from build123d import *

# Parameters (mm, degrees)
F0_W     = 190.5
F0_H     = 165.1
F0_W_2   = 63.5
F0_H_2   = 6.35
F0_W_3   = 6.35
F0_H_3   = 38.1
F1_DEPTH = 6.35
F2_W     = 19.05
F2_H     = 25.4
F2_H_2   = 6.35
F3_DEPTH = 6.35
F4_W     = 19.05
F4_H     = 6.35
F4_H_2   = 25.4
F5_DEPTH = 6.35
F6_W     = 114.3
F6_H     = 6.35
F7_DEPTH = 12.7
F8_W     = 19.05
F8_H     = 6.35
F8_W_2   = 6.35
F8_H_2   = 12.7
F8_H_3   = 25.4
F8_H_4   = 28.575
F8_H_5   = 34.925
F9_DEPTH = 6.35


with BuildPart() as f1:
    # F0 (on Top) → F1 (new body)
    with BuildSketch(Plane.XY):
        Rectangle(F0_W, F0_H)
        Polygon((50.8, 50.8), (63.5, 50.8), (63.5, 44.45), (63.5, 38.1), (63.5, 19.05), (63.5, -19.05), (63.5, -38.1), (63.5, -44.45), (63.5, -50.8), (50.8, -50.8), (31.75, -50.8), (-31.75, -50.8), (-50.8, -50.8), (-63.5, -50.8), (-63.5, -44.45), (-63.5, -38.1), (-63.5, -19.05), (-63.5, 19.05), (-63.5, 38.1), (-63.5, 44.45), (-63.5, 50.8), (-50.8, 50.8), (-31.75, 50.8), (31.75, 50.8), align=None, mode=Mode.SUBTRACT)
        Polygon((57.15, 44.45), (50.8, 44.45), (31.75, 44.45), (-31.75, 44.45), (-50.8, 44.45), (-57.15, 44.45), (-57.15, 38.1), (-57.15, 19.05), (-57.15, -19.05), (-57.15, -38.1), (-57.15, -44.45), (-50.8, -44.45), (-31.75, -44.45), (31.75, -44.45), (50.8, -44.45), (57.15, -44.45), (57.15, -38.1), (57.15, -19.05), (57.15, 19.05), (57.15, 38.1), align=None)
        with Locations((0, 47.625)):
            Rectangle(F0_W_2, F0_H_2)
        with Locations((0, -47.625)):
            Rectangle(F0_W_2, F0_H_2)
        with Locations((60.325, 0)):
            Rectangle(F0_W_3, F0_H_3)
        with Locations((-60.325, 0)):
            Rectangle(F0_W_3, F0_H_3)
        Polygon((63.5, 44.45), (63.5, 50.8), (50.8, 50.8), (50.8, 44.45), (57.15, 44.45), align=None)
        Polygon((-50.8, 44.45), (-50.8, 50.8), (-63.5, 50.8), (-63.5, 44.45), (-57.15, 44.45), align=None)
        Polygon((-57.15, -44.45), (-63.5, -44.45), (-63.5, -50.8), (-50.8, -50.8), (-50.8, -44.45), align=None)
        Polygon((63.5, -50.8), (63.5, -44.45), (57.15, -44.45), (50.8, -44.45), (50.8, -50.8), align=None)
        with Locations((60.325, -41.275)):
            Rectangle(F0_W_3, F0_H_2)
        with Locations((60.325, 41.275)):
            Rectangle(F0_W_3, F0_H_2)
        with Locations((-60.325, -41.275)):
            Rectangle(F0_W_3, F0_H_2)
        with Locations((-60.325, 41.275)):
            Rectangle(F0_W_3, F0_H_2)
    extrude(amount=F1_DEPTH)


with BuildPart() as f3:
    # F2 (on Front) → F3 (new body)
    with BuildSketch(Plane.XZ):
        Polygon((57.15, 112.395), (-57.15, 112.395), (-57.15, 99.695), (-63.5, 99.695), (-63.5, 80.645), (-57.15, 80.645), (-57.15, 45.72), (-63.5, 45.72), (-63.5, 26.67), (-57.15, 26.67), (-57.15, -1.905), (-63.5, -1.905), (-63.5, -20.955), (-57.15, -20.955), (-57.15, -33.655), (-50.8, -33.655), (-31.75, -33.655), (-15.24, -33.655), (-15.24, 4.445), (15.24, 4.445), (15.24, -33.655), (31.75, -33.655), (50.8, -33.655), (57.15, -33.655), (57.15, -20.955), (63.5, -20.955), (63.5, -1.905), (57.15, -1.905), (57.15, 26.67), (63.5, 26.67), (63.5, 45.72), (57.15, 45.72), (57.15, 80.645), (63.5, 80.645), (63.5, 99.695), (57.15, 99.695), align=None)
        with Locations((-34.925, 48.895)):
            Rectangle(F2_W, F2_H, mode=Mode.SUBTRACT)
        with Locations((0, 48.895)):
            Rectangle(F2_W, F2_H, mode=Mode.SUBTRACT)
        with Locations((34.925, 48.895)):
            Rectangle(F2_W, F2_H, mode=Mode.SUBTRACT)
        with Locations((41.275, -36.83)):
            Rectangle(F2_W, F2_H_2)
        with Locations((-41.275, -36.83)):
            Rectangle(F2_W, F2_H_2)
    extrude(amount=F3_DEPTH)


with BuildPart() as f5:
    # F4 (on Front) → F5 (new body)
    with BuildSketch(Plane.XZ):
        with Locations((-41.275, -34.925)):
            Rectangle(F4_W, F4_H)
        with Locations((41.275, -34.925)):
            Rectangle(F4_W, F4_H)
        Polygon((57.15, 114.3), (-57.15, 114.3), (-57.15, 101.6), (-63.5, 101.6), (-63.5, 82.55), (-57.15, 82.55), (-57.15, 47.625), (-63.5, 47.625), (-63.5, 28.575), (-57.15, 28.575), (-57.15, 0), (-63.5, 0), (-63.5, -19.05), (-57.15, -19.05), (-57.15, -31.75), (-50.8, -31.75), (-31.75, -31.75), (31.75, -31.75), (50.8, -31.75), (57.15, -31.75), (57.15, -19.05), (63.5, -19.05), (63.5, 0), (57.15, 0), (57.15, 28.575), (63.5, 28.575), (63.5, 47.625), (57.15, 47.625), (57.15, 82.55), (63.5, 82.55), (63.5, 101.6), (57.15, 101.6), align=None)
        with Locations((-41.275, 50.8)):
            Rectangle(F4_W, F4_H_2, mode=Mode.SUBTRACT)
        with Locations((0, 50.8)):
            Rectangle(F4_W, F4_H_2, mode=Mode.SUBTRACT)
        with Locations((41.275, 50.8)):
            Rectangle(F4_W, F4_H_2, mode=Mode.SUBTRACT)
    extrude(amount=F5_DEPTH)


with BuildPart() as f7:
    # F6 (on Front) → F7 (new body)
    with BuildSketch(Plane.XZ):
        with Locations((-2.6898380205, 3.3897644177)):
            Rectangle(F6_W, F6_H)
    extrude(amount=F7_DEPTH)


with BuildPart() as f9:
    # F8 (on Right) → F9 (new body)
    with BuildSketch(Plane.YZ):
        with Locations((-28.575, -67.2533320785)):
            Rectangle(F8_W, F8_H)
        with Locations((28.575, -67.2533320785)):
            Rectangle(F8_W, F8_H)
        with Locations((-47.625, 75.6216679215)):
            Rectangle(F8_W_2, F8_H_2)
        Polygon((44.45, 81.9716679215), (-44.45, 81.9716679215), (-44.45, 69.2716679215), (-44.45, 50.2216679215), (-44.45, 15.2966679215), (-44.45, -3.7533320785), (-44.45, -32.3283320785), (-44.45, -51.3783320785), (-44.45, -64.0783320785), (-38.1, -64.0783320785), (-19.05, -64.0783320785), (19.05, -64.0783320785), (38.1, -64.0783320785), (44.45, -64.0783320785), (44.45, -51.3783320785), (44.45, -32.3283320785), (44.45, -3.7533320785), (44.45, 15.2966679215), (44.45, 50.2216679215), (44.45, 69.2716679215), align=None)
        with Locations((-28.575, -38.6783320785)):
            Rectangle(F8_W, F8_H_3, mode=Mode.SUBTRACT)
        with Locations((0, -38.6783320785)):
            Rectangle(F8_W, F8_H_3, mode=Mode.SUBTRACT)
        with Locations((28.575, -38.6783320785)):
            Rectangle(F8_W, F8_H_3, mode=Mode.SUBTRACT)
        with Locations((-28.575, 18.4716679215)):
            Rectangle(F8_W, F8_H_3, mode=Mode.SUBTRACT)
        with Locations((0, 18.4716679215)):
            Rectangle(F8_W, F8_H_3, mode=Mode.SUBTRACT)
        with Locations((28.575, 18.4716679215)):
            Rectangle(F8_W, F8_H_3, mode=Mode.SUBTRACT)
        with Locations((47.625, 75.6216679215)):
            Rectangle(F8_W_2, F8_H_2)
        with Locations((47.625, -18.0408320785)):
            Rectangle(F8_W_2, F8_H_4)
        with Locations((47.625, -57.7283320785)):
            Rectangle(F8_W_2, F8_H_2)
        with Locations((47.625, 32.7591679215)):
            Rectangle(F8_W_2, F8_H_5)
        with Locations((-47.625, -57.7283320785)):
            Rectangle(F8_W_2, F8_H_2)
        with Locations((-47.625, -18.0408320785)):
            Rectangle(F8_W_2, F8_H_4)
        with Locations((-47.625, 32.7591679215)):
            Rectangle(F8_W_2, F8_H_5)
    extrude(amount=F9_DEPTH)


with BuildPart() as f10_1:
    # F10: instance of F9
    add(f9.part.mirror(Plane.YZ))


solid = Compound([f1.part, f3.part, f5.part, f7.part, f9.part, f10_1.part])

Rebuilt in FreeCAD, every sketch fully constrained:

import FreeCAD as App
import Part
import Sketcher
from FreeCAD import Vector
Q = App.Units.Quantity

doc = App.newDocument("Part")
body = doc.addObject("PartDesign::Body", "Body")

sketch1 = body.newObject("Sketcher::SketchObject", "Sketch")
sketch1.AttachmentSupport = (doc.getObject("XY_Plane"), [""])
sketch1.MapMode = "FlatFace"
sketch1.addGeometry([
    Part.LineSegment(Vector(-95, 83, 0), Vector(-95, -83, 0)),
    Part.LineSegment(Vector(-95, -83, 0), Vector(95, -83, 0)),
    Part.LineSegment(Vector(95, -83, 0), Vector(95, 83, 0)),
    Part.LineSegment(Vector(95, 83, 0), Vector(-95, 83, 0)),
    Part.LineSegment(Vector(-51, 51, 0), Vector(-32, 51, 0)),
    Part.LineSegment(Vector(-32, 51, 0), Vector(-32, 44, 0)),
    Part.LineSegment(Vector(-32, 44, 0), Vector(-51, 44, 0)),
    Part.LineSegment(Vector(-51, 44, 0), Vector(-51, 51, 0)),
    Part.LineSegment(Vector(-57, 38, 0), Vector(-57, 19, 0)),
    Part.LineSegment(Vector(-57, 19, 0), Vector(-64, 19, 0)),
    Part.LineSegment(Vector(-64, 19, 0), Vector(-64, 38, 0)),
    Part.LineSegment(Vector(-64, 38, 0), Vector(-57, 38, 0)),
    Part.LineSegment(Vector(-57, -19, 0), Vector(-57, -38, 0)),
    Part.LineSegment(Vector(-57, -38, 0), Vector(-64, -38, 0)),
    Part.LineSegment(Vector(-64, -38, 0), Vector(-64, -19, 0)),
    Part.LineSegment(Vector(-64, -19, 0), Vector(-57, -19, 0)),
    Part.LineSegment(Vector(-51, -44, 0), Vector(-32, -44, 0)),
    Part.LineSegment(Vector(-32, -44, 0), Vector(-32, -51, 0)),
    Part.LineSegment(Vector(-32, -51, 0), Vector(-51, -51, 0)),
    Part.LineSegment(Vector(-51, -51, 0), Vector(-51, -44, 0)),
    Part.LineSegment(Vector(32, -44, 0), Vector(51, -44, 0)),
    Part.LineSegment(Vector(51, -44, 0), Vector(51, -51, 0)),
    Part.LineSegment(Vector(51, -51, 0), Vector(32, -51, 0)),
    Part.LineSegment(Vector(32, -51, 0), Vector(32, -44, 0)),
    Part.LineSegment(Vector(57, -38, 0), Vector(57, -19, 0)),
    Part.LineSegment(Vector(57, -19, 0), Vector(64, -19, 0)),
    Part.LineSegment(Vector(64, -19, 0), Vector(64, -38, 0)),
    Part.LineSegment(Vector(64, -38, 0), Vector(57, -38, 0)),
    Part.LineSegment(Vector(57, 19, 0), Vector(57, 38, 0)),
    Part.LineSegment(Vector(57, 38, 0), Vector(64, 38, 0)),
    Part.LineSegment(Vector(64, 38, 0), Vector(64, 19, 0)),
    Part.LineSegment(Vector(64, 19, 0), Vector(57, 19, 0)),
    Part.LineSegment(Vector(51, 44, 0), Vector(32, 44, 0)),
    Part.LineSegment(Vector(32, 44, 0), Vector(32, 51, 0)),
    Part.LineSegment(Vector(32, 51, 0), Vector(51, 51, 0)),
    Part.LineSegment(Vector(51, 51, 0), Vector(51, 44, 0)),
], False)
sketch1.addConstraint([
    Sketcher.Constraint("Coincident", 0, 2, 1, 1),
    Sketcher.Constraint("Coincident", 1, 2, 2, 1),
    Sketcher.Constraint("Coincident", 2, 2, 3, 1),
    Sketcher.Constraint("Coincident", 3, 2, 0, 1),
    Sketcher.Constraint("Coincident", 4, 2, 5, 1),
    Sketcher.Constraint("Coincident", 5, 2, 6, 1),
    Sketcher.Constraint("Coincident", 6, 2, 7, 1),
    Sketcher.Constraint("Coincident", 7, 2, 4, 1),
    Sketcher.Constraint("Coincident", 8, 2, 9, 1),
    Sketcher.Constraint("Coincident", 9, 2, 10, 1),
    Sketcher.Constraint("Coincident", 10, 2, 11, 1),
    Sketcher.Constraint("Coincident", 11, 2, 8, 1),
    Sketcher.Constraint("Coincident", 12, 2, 13, 1),
    Sketcher.Constraint("Coincident", 13, 2, 14, 1),
    Sketcher.Constraint("Coincident", 14, 2, 15, 1),
    Sketcher.Constraint("Coincident", 15, 2, 12, 1),
    Sketcher.Constraint("Coincident", 16, 2, 17, 1),
    Sketcher.Constraint("Coincident", 17, 2, 18, 1),
    Sketcher.Constraint("Coincident", 18, 2, 19, 1),
    Sketcher.Constraint("Coincident", 19, 2, 16, 1),
    Sketcher.Constraint("Coincident", 20, 2, 21, 1),
    Sketcher.Constraint("Coincident", 21, 2, 22, 1),
    Sketcher.Constraint("Coincident", 22, 2, 23, 1),
    Sketcher.Constraint("Coincident", 23, 2, 20, 1),
    Sketcher.Constraint("Coincident", 24, 2, 25, 1),
    Sketcher.Constraint("Coincident", 25, 2, 26, 1),
    Sketcher.Constraint("Coincident", 26, 2, 27, 1),
    Sketcher.Constraint("Coincident", 27, 2, 24, 1),
    Sketcher.Constraint("Coincident", 28, 2, 29, 1),
    Sketcher.Constraint("Coincident", 29, 2, 30, 1),
    Sketcher.Constraint("Coincident", 30, 2, 31, 1),
    Sketcher.Constraint("Coincident", 31, 2, 28, 1),
    Sketcher.Constraint("Coincident", 32, 2, 33, 1),
    Sketcher.Constraint("Coincident", 33, 2, 34, 1),
    Sketcher.Constraint("Coincident", 34, 2, 35, 1),
    Sketcher.Constraint("Coincident", 35, 2, 32, 1),
    Sketcher.Constraint("Vertical", 0),
    Sketcher.Constraint("Horizontal", 1),
    Sketcher.Constraint("Vertical", 2),
    Sketcher.Constraint("Horizontal", 3),
    Sketcher.Constraint("Horizontal", 4),
    Sketcher.Constraint("Vertical", 5),
    Sketcher.Constraint("Horizontal", 6),
    Sketcher.Constraint("Vertical", 7),
    Sketcher.Constraint("Vertical", 8),
    Sketcher.Constraint("Horizontal", 9),
    Sketcher.Constraint("Vertical", 10),
    Sketcher.Constraint("Horizontal", 11),
    Sketcher.Constraint("Vertical", 12),
    Sketcher.Constraint("Horizontal", 13),
    Sketcher.Constraint("Vertical", 14),
    Sketcher.Constraint("Horizontal", 15),
    Sketcher.Constraint("Horizontal", 16),
    Sketcher.Constraint("Vertical", 17),
    Sketcher.Constraint("Horizontal", 18),
    Sketcher.Constraint("Vertical", 19),
    Sketcher.Constraint("Horizontal", 20),
    Sketcher.Constraint("Vertical", 21),
    Sketcher.Constraint("Horizontal", 22),
    Sketcher.Constraint("Vertical", 23),
    Sketcher.Constraint("Vertical", 24),
    Sketcher.Constraint("Horizontal", 25),
    Sketcher.Constraint("Vertical", 26),
    Sketcher.Constraint("Horizontal", 27),
    Sketcher.Constraint("Vertical", 28),
    Sketcher.Constraint("Horizontal", 29),
    Sketcher.Constraint("Vertical", 30),
    Sketcher.Constraint("Horizontal", 31),
    Sketcher.Constraint("Horizontal", 32),
    Sketcher.Constraint("Vertical", 33),
    Sketcher.Constraint("Horizontal", 34),
    Sketcher.Constraint("Vertical", 35),
    Sketcher.Constraint("Symmetric", 0, 2, 2, 2, -1, 1),
    Sketcher.Constraint("Symmetric", 6, 2, 20, 2, -1, 1),
    Sketcher.Constraint("Symmetric", 4, 2, 22, 2, -1, 1),
    Sketcher.Constraint("Symmetric", 8, 2, 24, 2, -1, 1),
    Sketcher.Constraint("Symmetric", 10, 2, 26, 2, -1, 1),
    Sketcher.Constraint("Symmetric", 12, 2, 28, 2, -1, 1),
    Sketcher.Constraint("Symmetric", 14, 2, 30, 2, -1, 1),
    Sketcher.Constraint("Symmetric", 16, 2, 32, 2, -1, 1),
    Sketcher.Constraint("Symmetric", 18, 2, 34, 2, -1, 1),
    Sketcher.Constraint("Symmetric", 19, 2, 20, 2, -2),
    Sketcher.Constraint("Symmetric", 17, 2, 22, 2, -2),
    Sketcher.Constraint("Symmetric", 15, 2, 24, 2, -2),
    Sketcher.Constraint("Symmetric", 13, 2, 26, 2, -2),
    Sketcher.Constraint("Equal", 31, 5),
    Sketcher.Constraint("Equal", 34, 8),
    Sketcher.Constraint("DistanceX", 1, 1, 1, 2, Q("7.5 in")),
    Sketcher.Constraint("DistanceY", 0, 2, 0, 1, Q("6.5 in")),
    Sketcher.Constraint("DistanceY", -1, 1, 4, 2, Q("2 in")),
    Sketcher.Constraint("DistanceX", 6, 2, -1, 1, Q("2 in")),
    Sketcher.Constraint("DistanceX", 4, 2, 2, 2, Q("5 in")),
    Sketcher.Constraint("DistanceY", 0, 2, 5, 2, Q("5 in")),
    Sketcher.Constraint("DistanceY", 8, 2, 6, 2, Q("1 in")),
    Sketcher.Constraint("DistanceX", 8, 2, 5, 2, Q("1 in")),
])
pad1 = body.newObject("PartDesign::Pad", "Pad")
pad1.Profile = sketch1
pad1.Length = Q("0.25 in")
body2 = doc.addObject("PartDesign::Body", "Body001")

sketch2 = body2.newObject("Sketcher::SketchObject", "Sketch001")
sketch2.AttachmentSupport = (doc.getObject("XZ_Plane001"), [""])
sketch2.MapMode = "FlatFace"
sketch2.addGeometry([
    Part.LineSegment(Vector(57, 112, 0), Vector(-57, 112, 0)),
    Part.LineSegment(Vector(-57, 112, 0), Vector(-57, 100, 0)),
    Part.LineSegment(Vector(-57, 100, 0), Vector(-64, 100, 0)),
    Part.LineSegment(Vector(-64, 100, 0), Vector(-64, 81, 0)),
    Part.LineSegment(Vector(-64, 81, 0), Vector(-57, 81, 0)),
    Part.LineSegment(Vector(-57, 81, 0), Vector(-57, 46, 0)),
    Part.LineSegment(Vector(-57, 46, 0), Vector(-64, 46, 0)),
    Part.LineSegment(Vector(-64, 46, 0), Vector(-64, 27, 0)),
    Part.LineSegment(Vector(-64, 27, 0), Vector(-57, 27, 0)),
    Part.LineSegment(Vector(-57, 27, 0), Vector(-57, -2, 0)),
    Part.LineSegment(Vector(-57, -2, 0), Vector(-64, -2, 0)),
    Part.LineSegment(Vector(-64, -2, 0), Vector(-64, -21, 0)),
    Part.LineSegment(Vector(-64, -21, 0), Vector(-57, -21, 0)),
    Part.LineSegment(Vector(-57, -21, 0), Vector(-57, -34, 0)),
    Part.LineSegment(Vector(-57, -34, 0), Vector(-51, -34, 0)),
    Part.LineSegment(Vector(-51, -34, 0), Vector(-51, -40, 0)),
    Part.LineSegment(Vector(-51, -40, 0), Vector(-32, -40, 0)),
    Part.LineSegment(Vector(-32, -40, 0), Vector(-32, -34, 0)),
    Part.LineSegment(Vector(-32, -34, 0), Vector(-15, -34, 0)),
    Part.LineSegment(Vector(-15, -34, 0), Vector(-15, 4, 0)),
    Part.LineSegment(Vector(-15, 4, 0), Vector(15, 4, 0)),
    Part.LineSegment(Vector(15, 4, 0), Vector(15, -34, 0)),
    Part.LineSegment(Vector(15, -34, 0), Vector(32, -34, 0)),
    Part.LineSegment(Vector(32, -34, 0), Vector(32, -40, 0)),
    Part.LineSegment(Vector(32, -40, 0), Vector(51, -40, 0)),
    Part.LineSegment(Vector(51, -40, 0), Vector(51, -34, 0)),
    Part.LineSegment(Vector(51, -34, 0), Vector(57, -34, 0)),
    Part.LineSegment(Vector(57, -34, 0), Vector(57, -21, 0)),
    Part.LineSegment(Vector(57, -21, 0), Vector(64, -21, 0)),
    Part.LineSegment(Vector(64, -21, 0), Vector(64, -2, 0)),
    Part.LineSegment(Vector(64, -2, 0), Vector(57, -2, 0)),
    Part.LineSegment(Vector(57, -2, 0), Vector(57, 27, 0)),
    Part.LineSegment(Vector(57, 27, 0), Vector(64, 27, 0)),
    Part.LineSegment(Vector(64, 27, 0), Vector(64, 46, 0)),
    Part.LineSegment(Vector(64, 46, 0), Vector(57, 46, 0)),
    Part.LineSegment(Vector(57, 46, 0), Vector(57, 81, 0)),
    Part.LineSegment(Vector(57, 81, 0), Vector(64, 81, 0)),
    Part.LineSegment(Vector(64, 81, 0), Vector(64, 100, 0)),
    Part.LineSegment(Vector(64, 100, 0), Vector(57, 100, 0)),
    Part.LineSegment(Vector(57, 100, 0), Vector(57, 112, 0)),
    Part.LineSegment(Vector(-25, 36, 0), Vector(-44, 36, 0)),
    Part.LineSegment(Vector(-44, 36, 0), Vector(-44, 62, 0)),
    Part.LineSegment(Vector(-44, 62, 0), Vector(-25, 62, 0)),
    Part.LineSegment(Vector(-25, 62, 0), Vector(-25, 36, 0)),
    Part.LineSegment(Vector(10, 36, 0), Vector(-10, 36, 0)),
    Part.LineSegment(Vector(-10, 36, 0), Vector(-10, 62, 0)),
    Part.LineSegment(Vector(-10, 62, 0), Vector(10, 62, 0)),
    Part.LineSegment(Vector(10, 62, 0), Vector(10, 36, 0)),
    Part.LineSegment(Vector(44, 36, 0), Vector(25, 36, 0)),
    Part.LineSegment(Vector(25, 36, 0), Vector(25, 62, 0)),
    Part.LineSegment(Vector(25, 62, 0), Vector(44, 62, 0)),
    Part.LineSegment(Vector(44, 62, 0), Vector(44, 36, 0)),
], False)
sketch2.addConstraint([
    Sketcher.Constraint("Coincident", 0, 2, 1, 1),
    Sketcher.Constraint("Coincident", 1, 2, 2, 1),
    Sketcher.Constraint("Coincident", 2, 2, 3, 1),
    Sketcher.Constraint("Coincident", 3, 2, 4, 1),
    Sketcher.Constraint("Coincident", 4, 2, 5, 1),
    Sketcher.Constraint("Coincident", 5, 2, 6, 1),
    Sketcher.Constraint("Coincident", 6, 2, 7, 1),
    Sketcher.Constraint("Coincident", 7, 2, 8, 1),
    Sketcher.Constraint("Coincident", 8, 2, 9, 1),
    Sketcher.Constraint("Coincident", 9, 2, 10, 1),
    Sketcher.Constraint("Coincident", 10, 2, 11, 1),
    Sketcher.Constraint("Coincident", 11, 2, 12, 1),
    Sketcher.Constraint("Coincident", 12, 2, 13, 1),
    Sketcher.Constraint("Coincident", 13, 2, 14, 1),
    Sketcher.Constraint("Coincident", 14, 2, 15, 1),
    Sketcher.Constraint("Coincident", 15, 2, 16, 1),
    Sketcher.Constraint("Coincident", 16, 2, 17, 1),
    Sketcher.Constraint("Coincident", 17, 2, 18, 1),
    Sketcher.Constraint("Coincident", 18, 2, 19, 1),
    Sketcher.Constraint("Coincident", 19, 2, 20, 1),
    Sketcher.Constraint("Coincident", 20, 2, 21, 1),
    Sketcher.Constraint("Coincident", 21, 2, 22, 1),
    Sketcher.Constraint("Coincident", 22, 2, 23, 1),
    Sketcher.Constraint("Coincident", 23, 2, 24, 1),
    Sketcher.Constraint("Coincident", 24, 2, 25, 1),
    Sketcher.Constraint("Coincident", 25, 2, 26, 1),
    Sketcher.Constraint("Coincident", 26, 2, 27, 1),
    Sketcher.Constraint("Coincident", 27, 2, 28, 1),
    Sketcher.Constraint("Coincident", 28, 2, 29, 1),
    Sketcher.Constraint("Coincident", 29, 2, 30, 1),
    Sketcher.Constraint("Coincident", 30, 2, 31, 1),
    Sketcher.Constraint("Coincident", 31, 2, 32, 1),
    Sketcher.Constraint("Coincident", 32, 2, 33, 1),
    Sketcher.Constraint("Coincident", 33, 2, 34, 1),
    Sketcher.Constraint("Coincident", 34, 2, 35, 1),
    Sketcher.Constraint("Coincident", 35, 2, 36, 1),
    Sketcher.Constraint("Coincident", 36, 2, 37, 1),
    Sketcher.Constraint("Coincident", 37, 2, 38, 1),
    Sketcher.Constraint("Coincident", 38, 2, 39, 1),
    Sketcher.Constraint("Coincident", 39, 2, 0, 1),
    Sketcher.Constraint("Coincident", 40, 2, 41, 1),
    Sketcher.Constraint("Coincident", 41, 2, 42, 1),
    Sketcher.Constraint("Coincident", 42, 2, 43, 1),
    Sketcher.Constraint("Coincident", 43, 2, 40, 1),
    Sketcher.Constraint("Coincident", 44, 2, 45, 1),
    Sketcher.Constraint("Coincident", 45, 2, 46, 1),
    Sketcher.Constraint("Coincident", 46, 2, 47, 1),
    Sketcher.Constraint("Coincident", 47, 2, 44, 1),
    Sketcher.Constraint("Coincident", 48, 2, 49, 1),
    Sketcher.Constraint("Coincident", 49, 2, 50, 1),
    Sketcher.Constraint("Coincident", 50, 2, 51, 1),
    Sketcher.Constraint("Coincident", 51, 2, 48, 1),
    Sketcher.Constraint("Horizontal", 0),
    Sketcher.Constraint("Vertical", 1),
    Sketcher.Constraint("Horizontal", 2),
    Sketcher.Constraint("Vertical", 3),
    Sketcher.Constraint("Horizontal", 4),
    Sketcher.Constraint("Vertical", 5),
    Sketcher.Constraint("Horizontal", 6),
    Sketcher.Constraint("Vertical", 7),
    Sketcher.Constraint("Horizontal", 8),
    Sketcher.Constraint("Vertical", 9),
    Sketcher.Constraint("Horizontal", 10),
    Sketcher.Constraint("Vertical", 11),
    Sketcher.Constraint("Horizontal", 12),
    Sketcher.Constraint("Vertical", 13),
    Sketcher.Constraint("Horizontal", 14),
    Sketcher.Constraint("Vertical", 15),
    Sketcher.Constraint("Horizontal", 16),
    Sketcher.Constraint("Vertical", 17),
    Sketcher.Constraint("Horizontal", 18),
    Sketcher.Constraint("Vertical", 19),
    Sketcher.Constraint("Horizontal", 20),
    Sketcher.Constraint("Vertical", 21),
    Sketcher.Constraint("Horizontal", 22),
    Sketcher.Constraint("Vertical", 23),
    Sketcher.Constraint("Horizontal", 24),
    Sketcher.Constraint("Vertical", 25),
    Sketcher.Constraint("Horizontal", 26),
    Sketcher.Constraint("Vertical", 27),
    Sketcher.Constraint("Horizontal", 28),
    Sketcher.Constraint("Vertical", 29),
    Sketcher.Constraint("Horizontal", 30),
    Sketcher.Constraint("Vertical", 31),
    Sketcher.Constraint("Horizontal", 32),
    Sketcher.Constraint("Vertical", 33),
    Sketcher.Constraint("Horizontal", 34),
    Sketcher.Constraint("Vertical", 35),
    Sketcher.Constraint("Horizontal", 36),
    Sketcher.Constraint("Vertical", 37),
    Sketcher.Constraint("Horizontal", 38),
    Sketcher.Constraint("Vertical", 39),
    Sketcher.Constraint("Horizontal", 40),
    Sketcher.Constraint("Vertical", 41),
    Sketcher.Constraint("Horizontal", 42),
    Sketcher.Constraint("Vertical", 43),
    Sketcher.Constraint("Horizontal", 44),
    Sketcher.Constraint("Vertical", 45),
    Sketcher.Constraint("Horizontal", 46),
    Sketcher.Constraint("Vertical", 47),
    Sketcher.Constraint("Horizontal", 48),
    Sketcher.Constraint("Vertical", 49),
    Sketcher.Constraint("Horizontal", 50),
    Sketcher.Constraint("Vertical", 51),
    Sketcher.Constraint("Symmetric", 18, 2, 21, 2, -2),
    Sketcher.Constraint("Symmetric", 16, 2, 23, 2, -2),
    Sketcher.Constraint("Symmetric", 14, 2, 25, 2, -2),
    Sketcher.Constraint("Symmetric", 12, 2, 27, 2, -2),
    Sketcher.Constraint("Symmetric", 10, 2, 29, 2, -2),
    Sketcher.Constraint("Symmetric", 8, 2, 31, 2, -2),
    Sketcher.Constraint("Symmetric", 6, 2, 33, 2, -2),
    Sketcher.Constraint("Symmetric", 4, 2, 35, 2, -2),
    Sketcher.Constraint("Symmetric", 2, 2, 37, 2, -2),
    Sketcher.Constraint("Symmetric", 43, 2, 48, 2, -2),
    Sketcher.Constraint("Symmetric", 41, 2, 50, 2, -2),
    Sketcher.Constraint("Horizontal", 14, 2, 17, 2),
    Sketcher.Constraint("Horizontal", 43, 2, 44, 2),
    Sketcher.Constraint("Horizontal", 42, 2, 45, 2),
    Sketcher.Constraint("Vertical", 1, 2, 4, 2),
    Sketcher.Constraint("Vertical", 3, 2, 6, 2),
    Sketcher.Constraint("Vertical", 5, 2, 8, 2),
    Sketcher.Constraint("Vertical", 7, 2, 10, 2),
    Sketcher.Constraint("Vertical", 9, 2, 12, 2),
    Sketcher.Constraint("Vertical", 35, 2, 38, 2),
    Sketcher.Constraint("Equal", 12, 14),
    Sketcher.Constraint("Equal", 24, 40),
    Sketcher.Constraint("Equal", 42, 44),
    Sketcher.Constraint("Equal", 50, 3),
    Sketcher.Constraint("Equal", 3, 7),
    Sketcher.Constraint("Equal", 7, 11),
    Sketcher.Constraint("Equal", 1, 13),
    Sketcher.Constraint("Equal", 38, 15),
    Sketcher.Constraint("DistanceY", 41, 1, 41, 2, Q("1 in")),
    Sketcher.Constraint("DistanceX", 0, 2, 0, 1, Q("4.5 in")),
    Sketcher.Constraint("DistanceX", 20, 1, 20, 2, Q("1.2 in")),
    Sketcher.Constraint("DistanceY", 1, 2, 1, 1, Q("0.5 in")),
    Sketcher.Constraint("DistanceY", 19, 1, 19, 2, Q("1.5 in")),
    Sketcher.Constraint("DistanceX", 14, 2, -1, 1, Q("2 in")),
    Sketcher.Constraint("DistanceX", 42, 2, -1, 1, Q("1 in")),
    Sketcher.Constraint("DistanceX", 13, 2, 16, 2, Q("1 in")),
    Sketcher.Constraint("DistanceY", -1, 1, 5, 2, Q("1.8 in")),
    Sketcher.Constraint("DistanceY", 9, 2, 40, 2, Q("1.5 in")),
    Sketcher.Constraint("DistanceY", 5, 2, 5, 1, Q("1.375 in")),
    Sketcher.Constraint("DistanceY", 9, 2, 9, 1, Q("1.125 in")),
    Sketcher.Constraint("DistanceX", 44, 2, -1, 1, Q("0.375 in")),
])
pad2 = body2.newObject("PartDesign::Pad", "Pad001")
pad2.Profile = sketch2
pad2.Length = Q("0.25 in")
body3 = doc.addObject("PartDesign::Body", "Body002")

sketch3 = body3.newObject("Sketcher::SketchObject", "Sketch002")
sketch3.AttachmentSupport = (doc.getObject("XZ_Plane002"), [""])
sketch3.MapMode = "FlatFace"
sketch3.addGeometry([
    Part.LineSegment(Vector(-51, -32, 0), Vector(-51, -38, 0)),
    Part.LineSegment(Vector(-51, -38, 0), Vector(-32, -38, 0)),
    Part.LineSegment(Vector(-32, -38, 0), Vector(-32, -32, 0)),
    Part.LineSegment(Vector(-32, -32, 0), Vector(32, -32, 0)),
    Part.LineSegment(Vector(32, -32, 0), Vector(32, -38, 0)),
    Part.LineSegment(Vector(32, -38, 0), Vector(51, -38, 0)),
    Part.LineSegment(Vector(51, -38, 0), Vector(51, -32, 0)),
    Part.LineSegment(Vector(51, -32, 0), Vector(57, -32, 0)),
    Part.LineSegment(Vector(57, -32, 0), Vector(57, -19, 0)),
    Part.LineSegment(Vector(57, -19, 0), Vector(64, -19, 0)),
    Part.LineSegment(Vector(64, -19, 0), Vector(64, 0, 0)),
    Part.LineSegment(Vector(64, 0, 0), Vector(57, 0, 0)),
    Part.LineSegment(Vector(57, 0, 0), Vector(57, 29, 0)),
    Part.LineSegment(Vector(57, 29, 0), Vector(64, 29, 0)),
    Part.LineSegment(Vector(64, 29, 0), Vector(64, 48, 0)),
    Part.LineSegment(Vector(64, 48, 0), Vector(57, 48, 0)),
    Part.LineSegment(Vector(57, 48, 0), Vector(57, 83, 0)),
    Part.LineSegment(Vector(57, 83, 0), Vector(64, 83, 0)),
    Part.LineSegment(Vector(64, 83, 0), Vector(64, 102, 0)),
    Part.LineSegment(Vector(64, 102, 0), Vector(57, 102, 0)),
    Part.LineSegment(Vector(57, 102, 0), Vector(57, 114, 0)),
    Part.LineSegment(Vector(57, 114, 0), Vector(-57, 114, 0)),
    Part.LineSegment(Vector(-57, 114, 0), Vector(-57, 102, 0)),
    Part.LineSegment(Vector(-57, 102, 0), Vector(-64, 102, 0)),
    Part.LineSegment(Vector(-64, 102, 0), Vector(-64, 83, 0)),
    Part.LineSegment(Vector(-64, 83, 0), Vector(-57, 83, 0)),
    Part.LineSegment(Vector(-57, 83, 0), Vector(-57, 48, 0)),
    Part.LineSegment(Vector(-57, 48, 0), Vector(-64, 48, 0)),
    Part.LineSegment(Vector(-64, 48, 0), Vector(-64, 29, 0)),
    Part.LineSegment(Vector(-64, 29, 0), Vector(-57, 29, 0)),
    Part.LineSegment(Vector(-57, 29, 0), Vector(-57, 0, 0)),
    Part.LineSegment(Vector(-57, 0, 0), Vector(-64, 0, 0)),
    Part.LineSegment(Vector(-64, 0, 0), Vector(-64, -19, 0)),
    Part.LineSegment(Vector(-64, -19, 0), Vector(-57, -19, 0)),
    Part.LineSegment(Vector(-57, -19, 0), Vector(-57, -32, 0)),
    Part.LineSegment(Vector(-57, -32, 0), Vector(-51, -32, 0)),
    Part.LineSegment(Vector(-32, 38, 0), Vector(-51, 38, 0)),
    Part.LineSegment(Vector(-51, 38, 0), Vector(-51, 64, 0)),
    Part.LineSegment(Vector(-51, 64, 0), Vector(-32, 64, 0)),
    Part.LineSegment(Vector(-32, 64, 0), Vector(-32, 38, 0)),
    Part.LineSegment(Vector(10, 38, 0), Vector(-10, 38, 0)),
    Part.LineSegment(Vector(-10, 38, 0), Vector(-10, 64, 0)),
    Part.LineSegment(Vector(-10, 64, 0), Vector(10, 64, 0)),
    Part.LineSegment(Vector(10, 64, 0), Vector(10, 38, 0)),
    Part.LineSegment(Vector(51, 38, 0), Vector(32, 38, 0)),
    Part.LineSegment(Vector(32, 38, 0), Vector(32, 64, 0)),
    Part.LineSegment(Vector(32, 64, 0), Vector(51, 64, 0)),
    Part.LineSegment(Vector(51, 64, 0), Vector(51, 38, 0)),
], False)
sketch3.addConstraint([
    Sketcher.Constraint("Coincident", 0, 2, 1, 1),
    Sketcher.Constraint("Coincident", 1, 2, 2, 1),
    Sketcher.Constraint("Coincident", 2, 2, 3, 1),
    Sketcher.Constraint("Coincident", 3, 2, 4, 1),
    Sketcher.Constraint("Coincident", 4, 2, 5, 1),
    Sketcher.Constraint("Coincident", 5, 2, 6, 1),
    Sketcher.Constraint("Coincident", 6, 2, 7, 1),
    Sketcher.Constraint("Coincident", 7, 2, 8, 1),
    Sketcher.Constraint("Coincident", 8, 2, 9, 1),
    Sketcher.Constraint("Coincident", 9, 2, 10, 1),
    Sketcher.Constraint("Coincident", 10, 2, 11, 1),
    Sketcher.Constraint("Coincident", 11, 2, 12, 1),
    Sketcher.Constraint("Coincident", 12, 2, 13, 1),
    Sketcher.Constraint("Coincident", 13, 2, 14, 1),
    Sketcher.Constraint("Coincident", 14, 2, 15, 1),
    Sketcher.Constraint("Coincident", 15, 2, 16, 1),
    Sketcher.Constraint("Coincident", 16, 2, 17, 1),
    Sketcher.Constraint("Coincident", 17, 2, 18, 1),
    Sketcher.Constraint("Coincident", 18, 2, 19, 1),
    Sketcher.Constraint("Coincident", 19, 2, 20, 1),
    Sketcher.Constraint("Coincident", 20, 2, 21, 1),
    Sketcher.Constraint("Coincident", 21, 2, 22, 1),
    Sketcher.Constraint("Coincident", 22, 2, 23, 1),
    Sketcher.Constraint("Coincident", 23, 2, 24, 1),
    Sketcher.Constraint("Coincident", 24, 2, 25, 1),
    Sketcher.Constraint("Coincident", 25, 2, 26, 1),
    Sketcher.Constraint("Coincident", 26, 2, 27, 1),
    Sketcher.Constraint("Coincident", 27, 2, 28, 1),
    Sketcher.Constraint("Coincident", 28, 2, 29, 1),
    Sketcher.Constraint("Coincident", 29, 2, 30, 1),
    Sketcher.Constraint("Coincident", 30, 2, 31, 1),
    Sketcher.Constraint("Coincident", 31, 2, 32, 1),
    Sketcher.Constraint("Coincident", 32, 2, 33, 1),
    Sketcher.Constraint("Coincident", 33, 2, 34, 1),
    Sketcher.Constraint("Coincident", 34, 2, 35, 1),
    Sketcher.Constraint("Coincident", 35, 2, 0, 1),
    Sketcher.Constraint("Coincident", 36, 2, 37, 1),
    Sketcher.Constraint("Coincident", 37, 2, 38, 1),
    Sketcher.Constraint("Coincident", 38, 2, 39, 1),
    Sketcher.Constraint("Coincident", 39, 2, 36, 1),
    Sketcher.Constraint("Coincident", 40, 2, 41, 1),
    Sketcher.Constraint("Coincident", 41, 2, 42, 1),
    Sketcher.Constraint("Coincident", 42, 2, 43, 1),
    Sketcher.Constraint("Coincident", 43, 2, 40, 1),
    Sketcher.Constraint("Coincident", 44, 2, 45, 1),
    Sketcher.Constraint("Coincident", 45, 2, 46, 1),
    Sketcher.Constraint("Coincident", 46, 2, 47, 1),
    Sketcher.Constraint("Coincident", 47, 2, 44, 1),
    Sketcher.Constraint("Vertical", 0),
    Sketcher.Constraint("Horizontal", 1),
    Sketcher.Constraint("Vertical", 2),
    Sketcher.Constraint("Horizontal", 3),
    Sketcher.Constraint("Vertical", 4),
    Sketcher.Constraint("Horizontal", 5),
    Sketcher.Constraint("Vertical", 6),
    Sketcher.Constraint("Horizontal", 7),
    Sketcher.Constraint("Vertical", 8),
    Sketcher.Constraint("Horizontal", 9),
    Sketcher.Constraint("Vertical", 10),
    Sketcher.Constraint("Horizontal", 11),
    Sketcher.Constraint("Vertical", 12),
    Sketcher.Constraint("Horizontal", 13),
    Sketcher.Constraint("Vertical", 14),
    Sketcher.Constraint("Horizontal", 15),
    Sketcher.Constraint("Vertical", 16),
    Sketcher.Constraint("Horizontal", 17),
    Sketcher.Constraint("Vertical", 18),
    Sketcher.Constraint("Horizontal", 19),
    Sketcher.Constraint("Vertical", 20),
    Sketcher.Constraint("Horizontal", 21),
    Sketcher.Constraint("Vertical", 22),
    Sketcher.Constraint("Horizontal", 23),
    Sketcher.Constraint("Vertical", 24),
    Sketcher.Constraint("Horizontal", 25),
    Sketcher.Constraint("Vertical", 26),
    Sketcher.Constraint("Horizontal", 27),
    Sketcher.Constraint("Vertical", 28),
    Sketcher.Constraint("Horizontal", 29),
    Sketcher.Constraint("Vertical", 30),
    Sketcher.Constraint("Horizontal", 31),
    Sketcher.Constraint("Vertical", 32),
    Sketcher.Constraint("Horizontal", 33),
    Sketcher.Constraint("Vertical", 34),
    Sketcher.Constraint("Horizontal", 35),
    Sketcher.Constraint("Horizontal", 36),
    Sketcher.Constraint("Vertical", 37),
    Sketcher.Constraint("Horizontal", 38),
    Sketcher.Constraint("Vertical", 39),
    Sketcher.Constraint("Horizontal", 40),
    Sketcher.Constraint("Vertical", 41),
    Sketcher.Constraint("Horizontal", 42),
    Sketcher.Constraint("Vertical", 43),
    Sketcher.Constraint("Horizontal", 44),
    Sketcher.Constraint("Vertical", 45),
    Sketcher.Constraint("Horizontal", 46),
    Sketcher.Constraint("Vertical", 47),
    Sketcher.Constraint("Symmetric", 11, 2, 30, 2, -1, 1),
    Sketcher.Constraint("Symmetric", 5, 2, 36, 2, -1, 1),
    Sketcher.Constraint("Symmetric", 1, 2, 44, 2, -1, 1),
    Sketcher.Constraint("Symmetric", 1, 2, 4, 2, -2),
    Sketcher.Constraint("Symmetric", 19, 2, 22, 2, -2),
    Sketcher.Constraint("Symmetric", 17, 2, 24, 2, -2),
    Sketcher.Constraint("Symmetric", 15, 2, 26, 2, -2),
    Sketcher.Constraint("Symmetric", 13, 2, 28, 2, -2),
    Sketcher.Constraint("Symmetric", 10, 2, 31, 2, -2),
    Sketcher.Constraint("Symmetric", 8, 2, 33, 2, -2),
    Sketcher.Constraint("Symmetric", 6, 2, 35, 2, -2),
    Sketcher.Constraint("Symmetric", 38, 2, 45, 2, -2),
    Sketcher.Constraint("Horizontal", 3, 2, 6, 2),
    Sketcher.Constraint("Horizontal", 39, 2, 40, 2),
    Sketcher.Constraint("Horizontal", 38, 2, 41, 2),
    Sketcher.Constraint("Vertical", 8, 2, 11, 2),
    Sketcher.Constraint("Vertical", 10, 2, 13, 2),
    Sketcher.Constraint("Vertical", 12, 2, 15, 2),
    Sketcher.Constraint("Vertical", 14, 2, 17, 2),
    Sketcher.Constraint("Vertical", 16, 2, 19, 2),
    Sketcher.Constraint("Vertical", 6, 2, 46, 2),
    Sketcher.Constraint("Equal", 7, 9),
    Sketcher.Constraint("Equal", 38, 40),
    Sketcher.Constraint("Equal", 35, 0),
    Sketcher.Constraint("Equal", 46, 10),
    Sketcher.Constraint("Equal", 10, 14),
    Sketcher.Constraint("Equal", 14, 18),
    Sketcher.Constraint("Equal", 8, 20),
    Sketcher.Constraint("DistanceY", 37, 1, 37, 2, Q("1 in")),
    Sketcher.Constraint("DistanceX", 3, 1, 3, 2, Q("2.5 in")),
    Sketcher.Constraint("DistanceX", 21, 2, 21, 1, Q("4.5 in")),
    Sketcher.Constraint("DistanceY", 8, 1, 8, 2, Q("0.5 in")),
    Sketcher.Constraint("DistanceX", 0, 2, -1, 1, Q("2 in")),
    Sketcher.Constraint("DistanceY", -1, 1, 18, 2, Q("4 in")),
    Sketcher.Constraint("DistanceY", 12, 1, 12, 2, Q("1.125 in")),
    Sketcher.Constraint("DistanceX", 40, 2, -1, 1, Q("0.375 in")),
])
pad3 = body3.newObject("PartDesign::Pad", "Pad002")
pad3.Profile = sketch3
pad3.Length = Q("0.25 in")
body4 = doc.addObject("PartDesign::Body", "Body003")

sketch4 = body4.newObject("Sketcher::SketchObject", "Sketch003")
sketch4.AttachmentSupport = (doc.getObject("XZ_Plane003"), [""])
sketch4.MapMode = "FlatFace"
sketch4.addGeometry([
    Part.LineSegment(Vector(-60, 7, 0), Vector(-60, 0, 0)),
    Part.LineSegment(Vector(-60, 0, 0), Vector(54, 0, 0)),
    Part.LineSegment(Vector(54, 0, 0), Vector(54, 7, 0)),
    Part.LineSegment(Vector(54, 7, 0), Vector(-60, 7, 0)),
], False)
sketch4.addConstraint([
    Sketcher.Constraint("Coincident", 0, 2, 1, 1),
    Sketcher.Constraint("Coincident", 1, 2, 2, 1),
    Sketcher.Constraint("Coincident", 2, 2, 3, 1),
    Sketcher.Constraint("Coincident", 3, 2, 0, 1),
    Sketcher.Constraint("Vertical", 0),
    Sketcher.Constraint("Horizontal", 1),
    Sketcher.Constraint("Vertical", 2),
    Sketcher.Constraint("Horizontal", 3),
    Sketcher.Constraint("DistanceX", 1, 1, 1, 2, Q("4.5 in")),
    Sketcher.Constraint("DistanceY", 0, 2, 0, 1, Q("0.25 in")),
    Sketcher.Constraint("DistanceX", 0, 2, -1, 1, 59.839838),
    Sketcher.Constraint("DistanceY", -1, 1, 0, 2, 0.214764),
])
pad4 = body4.newObject("PartDesign::Pad", "Pad003")
pad4.Profile = sketch4
pad4.Length = Q("0.5 in")
body5 = doc.addObject("PartDesign::Body", "Body004")

sketch5 = body5.newObject("Sketcher::SketchObject", "Sketch004")
sketch5.AttachmentSupport = (doc.getObject("YZ_Plane004"), [""])
sketch5.MapMode = "FlatFace"
sketch5.addGeometry([
    Part.LineSegment(Vector(-38, -64, 0), Vector(-38, -70, 0)),
    Part.LineSegment(Vector(-38, -70, 0), Vector(-19, -70, 0)),
    Part.LineSegment(Vector(-19, -70, 0), Vector(-19, -64, 0)),
    Part.LineSegment(Vector(-19, -64, 0), Vector(19, -64, 0)),
    Part.LineSegment(Vector(19, -64, 0), Vector(19, -70, 0)),
    Part.LineSegment(Vector(19, -70, 0), Vector(38, -70, 0)),
    Part.LineSegment(Vector(38, -70, 0), Vector(38, -64, 0)),
    Part.LineSegment(Vector(38, -64, 0), Vector(51, -64, 0)),
    Part.LineSegment(Vector(51, -64, 0), Vector(51, -51, 0)),
    Part.LineSegment(Vector(51, -51, 0), Vector(44, -51, 0)),
    Part.LineSegment(Vector(44, -51, 0), Vector(44, -32, 0)),
    Part.LineSegment(Vector(44, -32, 0), Vector(51, -32, 0)),
    Part.LineSegment(Vector(51, -32, 0), Vector(51, -4, 0)),
    Part.LineSegment(Vector(51, -4, 0), Vector(44, -4, 0)),
    Part.LineSegment(Vector(44, -4, 0), Vector(44, 15, 0)),
    Part.LineSegment(Vector(44, 15, 0), Vector(51, 15, 0)),
    Part.LineSegment(Vector(51, 15, 0), Vector(51, 50, 0)),
    Part.LineSegment(Vector(51, 50, 0), Vector(44, 50, 0)),
    Part.LineSegment(Vector(44, 50, 0), Vector(44, 69, 0)),
    Part.LineSegment(Vector(44, 69, 0), Vector(51, 69, 0)),
    Part.LineSegment(Vector(51, 69, 0), Vector(51, 82, 0)),
    Part.LineSegment(Vector(51, 82, 0), Vector(-51, 82, 0)),
    Part.LineSegment(Vector(-51, 82, 0), Vector(-51, 69, 0)),
    Part.LineSegment(Vector(-51, 69, 0), Vector(-44, 69, 0)),
    Part.LineSegment(Vector(-44, 69, 0), Vector(-44, 50, 0)),
    Part.LineSegment(Vector(-44, 50, 0), Vector(-51, 50, 0)),
    Part.LineSegment(Vector(-51, 50, 0), Vector(-51, 15, 0)),
    Part.LineSegment(Vector(-51, 15, 0), Vector(-44, 15, 0)),
    Part.LineSegment(Vector(-44, 15, 0), Vector(-44, -4, 0)),
    Part.LineSegment(Vector(-44, -4, 0), Vector(-51, -4, 0)),
    Part.LineSegment(Vector(-51, -4, 0), Vector(-51, -32, 0)),
    Part.LineSegment(Vector(-51, -32, 0), Vector(-44, -32, 0)),
    Part.LineSegment(Vector(-44, -32, 0), Vector(-44, -51, 0)),
    Part.LineSegment(Vector(-44, -51, 0), Vector(-51, -51, 0)),
    Part.LineSegment(Vector(-51, -51, 0), Vector(-51, -64, 0)),
    Part.LineSegment(Vector(-51, -64, 0), Vector(-38, -64, 0)),
    Part.LineSegment(Vector(-19, -51, 0), Vector(-38, -51, 0)),
    Part.LineSegment(Vector(-38, -51, 0), Vector(-38, -26, 0)),
    Part.LineSegment(Vector(-38, -26, 0), Vector(-19, -26, 0)),
    Part.LineSegment(Vector(-19, -26, 0), Vector(-19, -51, 0)),
    Part.LineSegment(Vector(10, -51, 0), Vector(-10, -51, 0)),
    Part.LineSegment(Vector(-10, -51, 0), Vector(-10, -26, 0)),
    Part.LineSegment(Vector(-10, -26, 0), Vector(10, -26, 0)),
    Part.LineSegment(Vector(10, -26, 0), Vector(10, -51, 0)),
    Part.LineSegment(Vector(38, -51, 0), Vector(19, -51, 0)),
    Part.LineSegment(Vector(19, -51, 0), Vector(19, -26, 0)),
    Part.LineSegment(Vector(19, -26, 0), Vector(38, -26, 0)),
    Part.LineSegment(Vector(38, -26, 0), Vector(38, -51, 0)),
    Part.LineSegment(Vector(-19, 6, 0), Vector(-38, 6, 0)),
    Part.LineSegment(Vector(-38, 6, 0), Vector(-38, 31, 0)),
    Part.LineSegment(Vector(-38, 31, 0), Vector(-19, 31, 0)),
    Part.LineSegment(Vector(-19, 31, 0), Vector(-19, 6, 0)),
    Part.LineSegment(Vector(10, 6, 0), Vector(-10, 6, 0)),
    Part.LineSegment(Vector(-10, 6, 0), Vector(-10, 31, 0)),
    Part.LineSegment(Vector(-10, 31, 0), Vector(10, 31, 0)),
    Part.LineSegment(Vector(10, 31, 0), Vector(10, 6, 0)),
    Part.LineSegment(Vector(38, 6, 0), Vector(19, 6, 0)),
    Part.LineSegment(Vector(19, 6, 0), Vector(19, 31, 0)),
    Part.LineSegment(Vector(19, 31, 0), Vector(38, 31, 0)),
    Part.LineSegment(Vector(38, 31, 0), Vector(38, 6, 0)),
], False)
sketch5.addConstraint([
    Sketcher.Constraint("Coincident", 0, 2, 1, 1),
    Sketcher.Constraint("Coincident", 1, 2, 2, 1),
    Sketcher.Constraint("Coincident", 2, 2, 3, 1),
    Sketcher.Constraint("Coincident", 3, 2, 4, 1),
    Sketcher.Constraint("Coincident", 4, 2, 5, 1),
    Sketcher.Constraint("Coincident", 5, 2, 6, 1),
    Sketcher.Constraint("Coincident", 6, 2, 7, 1),
    Sketcher.Constraint("Coincident", 7, 2, 8, 1),
    Sketcher.Constraint("Coincident", 8, 2, 9, 1),
    Sketcher.Constraint("Coincident", 9, 2, 10, 1),
    Sketcher.Constraint("Coincident", 10, 2, 11, 1),
    Sketcher.Constraint("Coincident", 11, 2, 12, 1),
    Sketcher.Constraint("Coincident", 12, 2, 13, 1),
    Sketcher.Constraint("Coincident", 13, 2, 14, 1),
    Sketcher.Constraint("Coincident", 14, 2, 15, 1),
    Sketcher.Constraint("Coincident", 15, 2, 16, 1),
    Sketcher.Constraint("Coincident", 16, 2, 17, 1),
    Sketcher.Constraint("Coincident", 17, 2, 18, 1),
    Sketcher.Constraint("Coincident", 18, 2, 19, 1),
    Sketcher.Constraint("Coincident", 19, 2, 20, 1),
    Sketcher.Constraint("Coincident", 20, 2, 21, 1),
    Sketcher.Constraint("Coincident", 21, 2, 22, 1),
    Sketcher.Constraint("Coincident", 22, 2, 23, 1),
    Sketcher.Constraint("Coincident", 23, 2, 24, 1),
    Sketcher.Constraint("Coincident", 24, 2, 25, 1),
    Sketcher.Constraint("Coincident", 25, 2, 26, 1),
    Sketcher.Constraint("Coincident", 26, 2, 27, 1),
    Sketcher.Constraint("Coincident", 27, 2, 28, 1),
    Sketcher.Constraint("Coincident", 28, 2, 29, 1),
    Sketcher.Constraint("Coincident", 29, 2, 30, 1),
    Sketcher.Constraint("Coincident", 30, 2, 31, 1),
    Sketcher.Constraint("Coincident", 31, 2, 32, 1),
    Sketcher.Constraint("Coincident", 32, 2, 33, 1),
    Sketcher.Constraint("Coincident", 33, 2, 34, 1),
    Sketcher.Constraint("Coincident", 34, 2, 35, 1),
    Sketcher.Constraint("Coincident", 35, 2, 0, 1),
    Sketcher.Constraint("Coincident", 36, 2, 37, 1),
    Sketcher.Constraint("Coincident", 37, 2, 38, 1),
    Sketcher.Constraint("Coincident", 38, 2, 39, 1),
    Sketcher.Constraint("Coincident", 39, 2, 36, 1),
    Sketcher.Constraint("Coincident", 40, 2, 41, 1),
    Sketcher.Constraint("Coincident", 41, 2, 42, 1),
    Sketcher.Constraint("Coincident", 42, 2, 43, 1),
    Sketcher.Constraint("Coincident", 43, 2, 40, 1),
    Sketcher.Constraint("Coincident", 44, 2, 45, 1),
    Sketcher.Constraint("Coincident", 45, 2, 46, 1),
    Sketcher.Constraint("Coincident", 46, 2, 47, 1),
    Sketcher.Constraint("Coincident", 47, 2, 44, 1),
    Sketcher.Constraint("Coincident", 48, 2, 49, 1),
    Sketcher.Constraint("Coincident", 49, 2, 50, 1),
    Sketcher.Constraint("Coincident", 50, 2, 51, 1),
    Sketcher.Constraint("Coincident", 51, 2, 48, 1),
    Sketcher.Constraint("Coincident", 52, 2, 53, 1),
    Sketcher.Constraint("Coincident", 53, 2, 54, 1),
    Sketcher.Constraint("Coincident", 54, 2, 55, 1),
    Sketcher.Constraint("Coincident", 55, 2, 52, 1),
    Sketcher.Constraint("Coincident", 56, 2, 57, 1),
    Sketcher.Constraint("Coincident", 57, 2, 58, 1),
    Sketcher.Constraint("Coincident", 58, 2, 59, 1),
    Sketcher.Constraint("Coincident", 59, 2, 56, 1),
    Sketcher.Constraint("Vertical", 0),
    Sketcher.Constraint("Horizontal", 1),
    Sketcher.Constraint("Vertical", 2),
    Sketcher.Constraint("Horizontal", 3),
    Sketcher.Constraint("Vertical", 4),
    Sketcher.Constraint("Horizontal", 5),
    Sketcher.Constraint("Vertical", 6),
    Sketcher.Constraint("Horizontal", 7),
    Sketcher.Constraint("Vertical", 8),
    Sketcher.Constraint("Horizontal", 9),
    Sketcher.Constraint("Vertical", 10),
    Sketcher.Constraint("Horizontal", 11),
    Sketcher.Constraint("Vertical", 12),
    Sketcher.Constraint("Horizontal", 13),
    Sketcher.Constraint("Vertical", 14),
    Sketcher.Constraint("Horizontal", 15),
    Sketcher.Constraint("Vertical", 16),
    Sketcher.Constraint("Horizontal", 17),
    Sketcher.Constraint("Vertical", 18),
    Sketcher.Constraint("Horizontal", 19),
    Sketcher.Constraint("Vertical", 20),
    Sketcher.Constraint("Horizontal", 21),
    Sketcher.Constraint("Vertical", 22),
    Sketcher.Constraint("Horizontal", 23),
    Sketcher.Constraint("Vertical", 24),
    Sketcher.Constraint("Horizontal", 25),
    Sketcher.Constraint("Vertical", 26),
    Sketcher.Constraint("Horizontal", 27),
    Sketcher.Constraint("Vertical", 28),
    Sketcher.Constraint("Horizontal", 29),
    Sketcher.Constraint("Vertical", 30),
    Sketcher.Constraint("Horizontal", 31),
    Sketcher.Constraint("Vertical", 32),
    Sketcher.Constraint("Horizontal", 33),
    Sketcher.Constraint("Vertical", 34),
    Sketcher.Constraint("Horizontal", 35),
    Sketcher.Constraint("Horizontal", 36),
    Sketcher.Constraint("Vertical", 37),
    Sketcher.Constraint("Horizontal", 38),
    Sketcher.Constraint("Vertical", 39),
    Sketcher.Constraint("Horizontal", 40),
    Sketcher.Constraint("Vertical", 41),
    Sketcher.Constraint("Horizontal", 42),
    Sketcher.Constraint("Vertical", 43),
    Sketcher.Constraint("Horizontal", 44),
    Sketcher.Constraint("Vertical", 45),
    Sketcher.Constraint("Horizontal", 46),
    Sketcher.Constraint("Vertical", 47),
    Sketcher.Constraint("Horizontal", 48),
    Sketcher.Constraint("Vertical", 49),
    Sketcher.Constraint("Horizontal", 50),
    Sketcher.Constraint("Vertical", 51),
    Sketcher.Constraint("Horizontal", 52),
    Sketcher.Constraint("Vertical", 53),
    Sketcher.Constraint("Horizontal", 54),
    Sketcher.Constraint("Vertical", 55),
    Sketcher.Constraint("Horizontal", 56),
    Sketcher.Constraint("Vertical", 57),
    Sketcher.Constraint("Horizontal", 58),
    Sketcher.Constraint("Vertical", 59),
    Sketcher.Constraint("Symmetric", 1, 2, 4, 2, -2),
    Sketcher.Constraint("Symmetric", 19, 2, 22, 2, -2),
    Sketcher.Constraint("Symmetric", 17, 2, 24, 2, -2),
    Sketcher.Constraint("Symmetric", 15, 2, 26, 2, -2),
    Sketcher.Constraint("Symmetric", 13, 2, 28, 2, -2),
    Sketcher.Constraint("Symmetric", 11, 2, 30, 2, -2),
    Sketcher.Constraint("Symmetric", 9, 2, 32, 2, -2),
    Sketcher.Constraint("Symmetric", 7, 2, 34, 2, -2),
    Sketcher.Constraint("Symmetric", 39, 2, 44, 2, -2),
    Sketcher.Constraint("Symmetric", 37, 2, 46, 2, -2),
    Sketcher.Constraint("Symmetric", 51, 2, 56, 2, -2),
    Sketcher.Constraint("Symmetric", 49, 2, 58, 2, -2),
    Sketcher.Constraint("Horizontal", 3, 2, 6, 2),
    Sketcher.Constraint("Horizontal", 33, 2, 36, 2),
    Sketcher.Constraint("Horizontal", 39, 2, 40, 2),
    Sketcher.Constraint("Horizontal", 38, 2, 41, 2),
    Sketcher.Constraint("Horizontal", 51, 2, 52, 2),
    Sketcher.Constraint("Horizontal", 50, 2, 53, 2),
    Sketcher.Constraint("Vertical", 8, 2, 11, 2),
    Sketcher.Constraint("Vertical", 10, 2, 13, 2),
    Sketcher.Constraint("Vertical", 12, 2, 15, 2),
    Sketcher.Constraint("Vertical", 14, 2, 17, 2),
    Sketcher.Constraint("Vertical", 16, 2, 19, 2),
    Sketcher.Constraint("Vertical", 35, 2, 36, 2),
    Sketcher.Constraint("Vertical", 2, 2, 38, 2),
    Sketcher.Constraint("Vertical", 6, 2, 46, 2),
    Sketcher.Constraint("Vertical", 37, 2, 48, 2),
    Sketcher.Constraint("Vertical", 39, 2, 50, 2),
    Sketcher.Constraint("Vertical", 41, 2, 52, 2),
    Sketcher.Constraint("Vertical", 43, 2, 54, 2),
    Sketcher.Constraint("Equal", 38, 40),
    Sketcher.Constraint("Equal", 33, 0),
    Sketcher.Constraint("Equal", 35, 8),
    Sketcher.Constraint("Equal", 58, 10),
    Sketcher.Constraint("Equal", 10, 14),
    Sketcher.Constraint("Equal", 14, 18),
    Sketcher.Constraint("Equal", 8, 20),
    Sketcher.Constraint("Equal", 47, 49),
    Sketcher.Constraint("DistanceX", 21, 2, 21, 1, Q("4 in")),
    Sketcher.Constraint("DistanceY", 37, 1, 37, 2, Q("1 in")),
    Sketcher.Constraint("DistanceX", 3, 1, 3, 2, Q("1.5 in")),
    Sketcher.Constraint("DistanceX", 7, 1, 7, 2, Q("0.5 in")),
    Sketcher.Constraint("DistanceX", 3, 2, 9, 2, Q("1 in")),
    Sketcher.Constraint("DistanceY", 12, 1, 12, 2, Q("1.125 in")),
    Sketcher.Constraint("DistanceY", 16, 1, 16, 2, Q("1.375 in")),
    Sketcher.Constraint("DistanceY", 37, 2, 48, 2, Q("1.25 in")),
    Sketcher.Constraint("DistanceX", 40, 2, -1, 1, Q("0.375 in")),
    Sketcher.Constraint("DistanceY", 0, 2, -1, 1, 70.428332),
])
pad5 = body5.newObject("PartDesign::Pad", "Pad004")
pad5.Profile = sketch5
pad5.Length = Q("0.25 in")
body6 = doc.addObject("PartDesign::Body", "Body005")
doc.recompute()

mirroring = doc.addObject("Part::Mirroring", "Mirroring")
mirroring.Source = body5
mirroring.Base = Vector(0, 0, 0)
mirroring.Normal = Vector(1, 0, 0)
body6.BaseFeature = mirroring
doc.recompute()
mirroring.Visibility = False

doc.recompute()
